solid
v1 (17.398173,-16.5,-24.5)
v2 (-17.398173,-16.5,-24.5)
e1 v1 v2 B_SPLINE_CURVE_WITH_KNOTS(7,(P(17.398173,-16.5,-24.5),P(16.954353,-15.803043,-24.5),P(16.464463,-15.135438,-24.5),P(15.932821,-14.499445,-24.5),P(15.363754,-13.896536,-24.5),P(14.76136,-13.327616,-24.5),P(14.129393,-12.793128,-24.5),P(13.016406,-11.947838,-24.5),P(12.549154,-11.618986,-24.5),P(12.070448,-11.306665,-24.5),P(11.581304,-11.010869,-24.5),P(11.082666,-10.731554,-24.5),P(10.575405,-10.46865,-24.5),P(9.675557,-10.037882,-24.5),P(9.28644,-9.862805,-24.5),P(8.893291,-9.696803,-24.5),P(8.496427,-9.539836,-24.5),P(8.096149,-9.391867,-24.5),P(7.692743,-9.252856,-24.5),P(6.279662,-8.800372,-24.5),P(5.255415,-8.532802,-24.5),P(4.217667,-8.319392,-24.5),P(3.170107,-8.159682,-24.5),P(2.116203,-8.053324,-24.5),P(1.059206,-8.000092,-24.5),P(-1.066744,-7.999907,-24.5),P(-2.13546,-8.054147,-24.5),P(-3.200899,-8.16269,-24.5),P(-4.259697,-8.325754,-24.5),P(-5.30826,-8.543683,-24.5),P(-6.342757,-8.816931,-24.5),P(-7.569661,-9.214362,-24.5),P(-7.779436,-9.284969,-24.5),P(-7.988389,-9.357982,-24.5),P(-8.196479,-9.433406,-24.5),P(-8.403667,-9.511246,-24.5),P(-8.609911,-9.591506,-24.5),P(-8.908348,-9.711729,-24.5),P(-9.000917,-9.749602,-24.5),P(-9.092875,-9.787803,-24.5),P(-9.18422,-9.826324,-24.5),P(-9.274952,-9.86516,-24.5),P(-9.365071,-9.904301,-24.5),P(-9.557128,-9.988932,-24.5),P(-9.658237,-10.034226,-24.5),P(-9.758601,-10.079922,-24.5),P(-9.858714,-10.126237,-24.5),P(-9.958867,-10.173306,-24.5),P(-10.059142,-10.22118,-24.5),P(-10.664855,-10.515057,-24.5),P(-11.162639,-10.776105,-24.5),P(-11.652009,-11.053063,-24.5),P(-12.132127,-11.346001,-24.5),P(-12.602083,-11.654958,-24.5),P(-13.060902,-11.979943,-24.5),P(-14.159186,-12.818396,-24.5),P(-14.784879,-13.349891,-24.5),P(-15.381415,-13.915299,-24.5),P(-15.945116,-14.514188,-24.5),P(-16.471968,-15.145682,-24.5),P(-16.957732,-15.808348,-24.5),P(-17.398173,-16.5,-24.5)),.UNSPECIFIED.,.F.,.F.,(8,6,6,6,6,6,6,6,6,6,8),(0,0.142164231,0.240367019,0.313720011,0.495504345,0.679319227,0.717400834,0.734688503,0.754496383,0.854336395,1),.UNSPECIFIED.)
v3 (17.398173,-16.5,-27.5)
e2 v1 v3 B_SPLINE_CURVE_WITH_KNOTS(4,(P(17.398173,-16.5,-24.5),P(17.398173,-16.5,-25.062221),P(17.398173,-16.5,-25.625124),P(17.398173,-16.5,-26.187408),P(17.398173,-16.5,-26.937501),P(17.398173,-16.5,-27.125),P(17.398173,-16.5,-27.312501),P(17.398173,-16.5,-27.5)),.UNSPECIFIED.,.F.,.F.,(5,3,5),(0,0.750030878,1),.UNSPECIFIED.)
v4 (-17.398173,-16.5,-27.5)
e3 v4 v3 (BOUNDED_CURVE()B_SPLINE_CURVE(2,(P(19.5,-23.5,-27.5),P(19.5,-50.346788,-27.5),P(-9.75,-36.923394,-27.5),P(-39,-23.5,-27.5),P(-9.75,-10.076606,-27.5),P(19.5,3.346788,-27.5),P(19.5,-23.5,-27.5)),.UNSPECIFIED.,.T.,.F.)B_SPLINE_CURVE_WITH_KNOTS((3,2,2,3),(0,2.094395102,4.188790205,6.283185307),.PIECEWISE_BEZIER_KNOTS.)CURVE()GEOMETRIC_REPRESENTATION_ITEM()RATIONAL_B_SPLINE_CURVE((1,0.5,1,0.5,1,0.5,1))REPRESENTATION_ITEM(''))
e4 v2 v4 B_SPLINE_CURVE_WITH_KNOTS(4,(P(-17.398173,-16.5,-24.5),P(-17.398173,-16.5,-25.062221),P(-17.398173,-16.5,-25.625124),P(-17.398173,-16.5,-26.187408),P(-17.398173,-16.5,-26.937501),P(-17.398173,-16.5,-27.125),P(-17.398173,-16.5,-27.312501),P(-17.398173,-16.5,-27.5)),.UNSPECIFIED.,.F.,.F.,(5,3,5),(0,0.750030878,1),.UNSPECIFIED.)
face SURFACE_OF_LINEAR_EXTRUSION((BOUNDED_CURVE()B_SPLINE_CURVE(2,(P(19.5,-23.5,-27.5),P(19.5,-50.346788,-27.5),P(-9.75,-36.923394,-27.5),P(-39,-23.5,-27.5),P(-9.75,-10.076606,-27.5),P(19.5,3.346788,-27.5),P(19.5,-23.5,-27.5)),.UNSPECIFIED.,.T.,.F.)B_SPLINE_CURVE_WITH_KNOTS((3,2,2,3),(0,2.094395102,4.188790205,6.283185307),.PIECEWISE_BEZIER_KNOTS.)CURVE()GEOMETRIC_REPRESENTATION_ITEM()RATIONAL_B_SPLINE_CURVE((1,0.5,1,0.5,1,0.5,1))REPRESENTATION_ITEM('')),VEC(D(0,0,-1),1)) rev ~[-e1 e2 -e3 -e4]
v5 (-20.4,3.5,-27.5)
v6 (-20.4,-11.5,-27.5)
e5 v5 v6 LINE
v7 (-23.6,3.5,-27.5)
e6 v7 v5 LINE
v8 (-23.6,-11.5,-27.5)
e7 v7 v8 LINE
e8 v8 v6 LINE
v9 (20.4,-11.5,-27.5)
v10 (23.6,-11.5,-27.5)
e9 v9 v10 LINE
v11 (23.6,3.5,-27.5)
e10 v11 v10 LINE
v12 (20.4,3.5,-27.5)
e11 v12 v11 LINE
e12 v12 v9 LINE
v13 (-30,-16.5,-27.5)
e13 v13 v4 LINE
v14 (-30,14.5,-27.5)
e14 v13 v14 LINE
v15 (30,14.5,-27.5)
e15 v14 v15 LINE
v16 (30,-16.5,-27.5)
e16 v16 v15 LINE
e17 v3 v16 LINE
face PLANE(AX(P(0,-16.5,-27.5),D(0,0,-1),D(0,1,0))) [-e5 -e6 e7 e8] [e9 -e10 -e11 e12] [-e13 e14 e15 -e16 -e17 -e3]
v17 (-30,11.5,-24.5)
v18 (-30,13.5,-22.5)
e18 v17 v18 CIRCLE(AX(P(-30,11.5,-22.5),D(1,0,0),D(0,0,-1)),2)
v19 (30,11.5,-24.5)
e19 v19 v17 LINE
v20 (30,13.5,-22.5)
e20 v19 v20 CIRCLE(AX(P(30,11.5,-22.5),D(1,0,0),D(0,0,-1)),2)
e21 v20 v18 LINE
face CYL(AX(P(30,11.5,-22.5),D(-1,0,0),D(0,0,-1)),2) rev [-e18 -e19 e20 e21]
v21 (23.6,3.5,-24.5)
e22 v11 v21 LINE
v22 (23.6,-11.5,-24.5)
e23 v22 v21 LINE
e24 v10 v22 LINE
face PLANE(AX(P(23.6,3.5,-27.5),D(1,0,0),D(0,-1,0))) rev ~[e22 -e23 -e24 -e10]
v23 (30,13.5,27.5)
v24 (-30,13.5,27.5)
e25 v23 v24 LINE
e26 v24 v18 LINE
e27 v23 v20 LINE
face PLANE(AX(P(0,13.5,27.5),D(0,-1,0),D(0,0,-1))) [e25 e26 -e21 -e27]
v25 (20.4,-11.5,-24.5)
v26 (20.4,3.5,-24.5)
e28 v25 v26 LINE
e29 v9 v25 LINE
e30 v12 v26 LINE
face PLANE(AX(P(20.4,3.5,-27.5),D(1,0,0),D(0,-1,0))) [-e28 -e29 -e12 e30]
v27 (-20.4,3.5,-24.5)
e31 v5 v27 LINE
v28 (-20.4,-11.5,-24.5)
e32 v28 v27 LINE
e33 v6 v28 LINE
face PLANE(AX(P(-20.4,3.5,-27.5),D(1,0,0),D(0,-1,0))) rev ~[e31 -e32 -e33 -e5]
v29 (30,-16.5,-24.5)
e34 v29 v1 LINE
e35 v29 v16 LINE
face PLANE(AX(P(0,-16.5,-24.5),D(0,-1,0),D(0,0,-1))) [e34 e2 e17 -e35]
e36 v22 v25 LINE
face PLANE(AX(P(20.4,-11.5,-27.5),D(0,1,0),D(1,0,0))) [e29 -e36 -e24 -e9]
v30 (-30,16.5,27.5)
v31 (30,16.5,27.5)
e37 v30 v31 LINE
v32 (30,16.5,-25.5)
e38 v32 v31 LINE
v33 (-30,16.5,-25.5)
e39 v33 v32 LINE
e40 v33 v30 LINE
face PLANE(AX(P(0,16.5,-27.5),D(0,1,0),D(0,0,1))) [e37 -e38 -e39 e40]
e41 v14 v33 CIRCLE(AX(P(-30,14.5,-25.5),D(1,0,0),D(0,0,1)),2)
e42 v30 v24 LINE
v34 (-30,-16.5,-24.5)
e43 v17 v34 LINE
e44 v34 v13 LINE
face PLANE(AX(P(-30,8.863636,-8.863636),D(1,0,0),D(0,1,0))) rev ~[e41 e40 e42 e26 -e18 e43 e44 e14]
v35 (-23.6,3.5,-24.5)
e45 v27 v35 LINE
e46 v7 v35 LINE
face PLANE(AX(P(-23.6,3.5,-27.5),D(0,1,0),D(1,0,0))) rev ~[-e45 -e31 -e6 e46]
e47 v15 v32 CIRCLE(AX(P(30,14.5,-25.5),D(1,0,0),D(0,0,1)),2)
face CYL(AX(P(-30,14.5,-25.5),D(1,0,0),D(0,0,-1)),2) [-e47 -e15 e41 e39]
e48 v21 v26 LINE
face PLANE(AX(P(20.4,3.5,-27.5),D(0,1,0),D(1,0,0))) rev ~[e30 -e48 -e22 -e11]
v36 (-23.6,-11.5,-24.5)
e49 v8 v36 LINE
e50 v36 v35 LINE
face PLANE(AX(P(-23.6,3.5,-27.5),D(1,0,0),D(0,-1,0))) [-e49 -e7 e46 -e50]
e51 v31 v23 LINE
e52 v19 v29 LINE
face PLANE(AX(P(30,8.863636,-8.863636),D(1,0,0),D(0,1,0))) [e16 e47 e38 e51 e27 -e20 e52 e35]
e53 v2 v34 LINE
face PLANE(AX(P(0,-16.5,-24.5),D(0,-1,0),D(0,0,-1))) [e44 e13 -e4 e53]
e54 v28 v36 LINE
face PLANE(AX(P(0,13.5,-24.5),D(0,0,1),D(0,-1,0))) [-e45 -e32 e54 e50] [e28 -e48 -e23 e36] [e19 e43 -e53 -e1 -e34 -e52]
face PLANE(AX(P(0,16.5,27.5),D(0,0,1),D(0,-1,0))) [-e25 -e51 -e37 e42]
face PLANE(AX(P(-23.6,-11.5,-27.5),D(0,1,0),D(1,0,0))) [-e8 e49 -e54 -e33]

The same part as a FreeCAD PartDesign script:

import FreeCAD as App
import Part
import Sketcher


def edges_at(feature, points):
    """Names of the edges that pass closest to the given points."""
    edges = feature.Shape.Edges
    near = lambda p: min(range(len(edges)), key=lambda i: edges[i].distToShape(Part.Vertex(*p))[0])
    return sorted({f"Edge{near(p) + 1}" for p in points})

doc = App.newDocument("Part")
body = doc.addObject("PartDesign::Body", "Body")

sketch1 = doc.addObject("Sketcher::SketchObject", "Sketch")
body.addObject(sketch1)
sketch1.AttachmentSupport = (doc.YZ_Plane, [""])
sketch1.MapMode = "FlatFace"
sketch1.addGeometry([
    Part.LineSegment(App.Vector(-16.5, -24.5, 0), App.Vector(-16.5, -27.5, 0)),
    Part.LineSegment(App.Vector(-16.5, -27.5, 0), App.Vector(16.5, -27.5, 0)),
    Part.LineSegment(App.Vector(16.5, -27.5, 0), App.Vector(16.5, 27.5, 0)),
    Part.LineSegment(App.Vector(16.5, 27.5, 0), App.Vector(13.5, 27.5, 0)),
    Part.LineSegment(App.Vector(13.5, 27.5, 0), App.Vector(13.5, -24.5, 0)),
    Part.LineSegment(App.Vector(13.5, -24.5, 0), App.Vector(-16.5, -24.5, 0)),
], False)
sketch1.addConstraint([
    Sketcher.Constraint("Coincident", 0, 2, 1, 1),
    Sketcher.Constraint("Coincident", 1, 2, 2, 1),
    Sketcher.Constraint("Coincident", 2, 2, 3, 1),
    Sketcher.Constraint("Coincident", 3, 2, 4, 1),
    Sketcher.Constraint("Coincident", 4, 2, 5, 1),
    Sketcher.Constraint("Coincident", 5, 2, 0, 1),
    Sketcher.Constraint("Vertical", 0),
    Sketcher.Constraint("Horizontal", 1),
    Sketcher.Constraint("Vertical", 2),
    Sketcher.Constraint("Horizontal", 3),
    Sketcher.Constraint("Vertical", 4),
    Sketcher.Constraint("Horizontal", 5),
    Sketcher.Constraint("Symmetric", 0, 2, 2, 2, -1, 1),
    Sketcher.Constraint("Equal", 3, 0),
    Sketcher.Constraint("DistanceX", 1, 1, 1, 2, 33.0),
    Sketcher.Constraint("DistanceX", 3, 2, 3, 1, 3.0),
    Sketcher.Constraint("DistanceY", 2, 1, 2, 2, 55.0),
])
pad1 = doc.addObject("PartDesign::Pad", "Pad")
body.addObject(pad1)
pad1.Profile = sketch1
pad1.Length = 60
pad1.Midplane = True

sketch2 = doc.addObject("Sketcher::SketchObject", "Sketch001")
body.addObject(sketch2)
sketch2.AttachmentSupport = (doc.XY_Plane, [""])
sketch2.MapMode = "FlatFace"
sketch2.AttachmentOffset = App.Placement(App.Vector(0, 0, -27.5), App.Rotation())
sketch2.addGeometry([
    Part.LineSegment(App.Vector(20.4, -11.5, 0), App.Vector(20.4, 3.5, 0)),
    Part.LineSegment(App.Vector(20.4, 3.5, 0), App.Vector(23.6, 3.5, 0)),
    Part.LineSegment(App.Vector(23.6, 3.5, 0), App.Vector(23.6, -11.5, 0)),
    Part.LineSegment(App.Vector(23.6, -11.5, 0), App.Vector(20.4, -11.5, 0)),
    Part.LineSegment(App.Vector(-23.6, -11.5, 0), App.Vector(-23.6, 3.5, 0)),
    Part.LineSegment(App.Vector(-23.6, 3.5, 0), App.Vector(-20.4, 3.5, 0)),
    Part.LineSegment(App.Vector(-20.4, 3.5, 0), App.Vector(-20.4, -11.5, 0)),
    Part.LineSegment(App.Vector(-20.4, -11.5, 0), App.Vector(-23.6, -11.5, 0)),
], False)
sketch2.addConstraint([
    Sketcher.Constraint("Coincident", 0, 2, 1, 1),
    Sketcher.Constraint("Coincident", 1, 2, 2, 1),
    Sketcher.Constraint("Coincident", 2, 2, 3, 1),
    Sketcher.Constraint("Coincident", 3, 2, 0, 1),
    Sketcher.Constraint("Coincident", 4, 2, 5, 1),
    Sketcher.Constraint("Coincident", 5, 2, 6, 1),
    Sketcher.Constraint("Coincident", 6, 2, 7, 1),
    Sketcher.Constraint("Coincident", 7, 2, 4, 1),
    Sketcher.Constraint("Vertical", 0),
    Sketcher.Constraint("Horizontal", 1),
    Sketcher.Constraint("Vertical", 2),
    Sketcher.Constraint("Horizontal", 3),
    Sketcher.Constraint("Vertical", 4),
    Sketcher.Constraint("Horizontal", 5),
    Sketcher.Constraint("Vertical", 6),
    Sketcher.Constraint("Horizontal", 7),
    Sketcher.Constraint("Symmetric", 1, 2, 4, 2, -2),
    Sketcher.Constraint("Symmetric", 3, 2, 6, 2, -2),
    Sketcher.Constraint("DistanceY", 0, 1, 0, 2, 15.0),
    Sketcher.Constraint("DistanceX", 1, 1, 1, 2, 3.2),
    Sketcher.Constraint("DistanceX", 4, 2, 0, 2, 44.0),
    Sketcher.Constraint("DistanceY", -1, 1, 0, 2, 3.5),
])
pocket1 = doc.addObject("PartDesign::Pocket", "Pocket")
body.addObject(pocket1)
pocket1.Profile = sketch2
pocket1.Length = 25
pocket1.Reversed = True

sketch3 = doc.addObject("Sketcher::SketchObject", "Sketch002")
body.addObject(sketch3)
sketch3.AttachmentSupport = (doc.XY_Plane, [""])
sketch3.MapMode = "FlatFace"
sketch3.AttachmentOffset = App.Placement(App.Vector(0, 0, -27.5), App.Rotation())
sketch3.addGeometry(Part.BSplineCurve([App.Vector(19.5, -23.5, 0), App.Vector(19.5, -50.346788, 0), App.Vector(-9.75, -36.923394, 0), App.Vector(-39, -23.5, 0), App.Vector(-9.75, -10.076606, 0), App.Vector(19.5, 3.346788, 0), App.Vector(19.5, -23.5, 0)], [3, 2, 2, 3], [0, 2.094395102, 4.188790205, 6.283185307], False, 2, [1, 0.5, 1, 0.5, 1, 0.5, 1], False), False)
sketch3.addConstraint(Sketcher.Constraint("Block", 0))
pocket2 = doc.addObject("PartDesign::Pocket", "Pocket001")
body.addObject(pocket2)
pocket2.Profile = sketch3
pocket2.Length = 25
pocket2.Reversed = True
doc.recompute()

fillet = doc.addObject("PartDesign::Fillet", "Fillet")
body.addObject(fillet)
fillet.Base = (pocket2, edges_at(pocket2, [(0, 13.5, -24.5), (0, 16.5, -27.5)]))
fillet.Radius = 2

doc.recompute()
